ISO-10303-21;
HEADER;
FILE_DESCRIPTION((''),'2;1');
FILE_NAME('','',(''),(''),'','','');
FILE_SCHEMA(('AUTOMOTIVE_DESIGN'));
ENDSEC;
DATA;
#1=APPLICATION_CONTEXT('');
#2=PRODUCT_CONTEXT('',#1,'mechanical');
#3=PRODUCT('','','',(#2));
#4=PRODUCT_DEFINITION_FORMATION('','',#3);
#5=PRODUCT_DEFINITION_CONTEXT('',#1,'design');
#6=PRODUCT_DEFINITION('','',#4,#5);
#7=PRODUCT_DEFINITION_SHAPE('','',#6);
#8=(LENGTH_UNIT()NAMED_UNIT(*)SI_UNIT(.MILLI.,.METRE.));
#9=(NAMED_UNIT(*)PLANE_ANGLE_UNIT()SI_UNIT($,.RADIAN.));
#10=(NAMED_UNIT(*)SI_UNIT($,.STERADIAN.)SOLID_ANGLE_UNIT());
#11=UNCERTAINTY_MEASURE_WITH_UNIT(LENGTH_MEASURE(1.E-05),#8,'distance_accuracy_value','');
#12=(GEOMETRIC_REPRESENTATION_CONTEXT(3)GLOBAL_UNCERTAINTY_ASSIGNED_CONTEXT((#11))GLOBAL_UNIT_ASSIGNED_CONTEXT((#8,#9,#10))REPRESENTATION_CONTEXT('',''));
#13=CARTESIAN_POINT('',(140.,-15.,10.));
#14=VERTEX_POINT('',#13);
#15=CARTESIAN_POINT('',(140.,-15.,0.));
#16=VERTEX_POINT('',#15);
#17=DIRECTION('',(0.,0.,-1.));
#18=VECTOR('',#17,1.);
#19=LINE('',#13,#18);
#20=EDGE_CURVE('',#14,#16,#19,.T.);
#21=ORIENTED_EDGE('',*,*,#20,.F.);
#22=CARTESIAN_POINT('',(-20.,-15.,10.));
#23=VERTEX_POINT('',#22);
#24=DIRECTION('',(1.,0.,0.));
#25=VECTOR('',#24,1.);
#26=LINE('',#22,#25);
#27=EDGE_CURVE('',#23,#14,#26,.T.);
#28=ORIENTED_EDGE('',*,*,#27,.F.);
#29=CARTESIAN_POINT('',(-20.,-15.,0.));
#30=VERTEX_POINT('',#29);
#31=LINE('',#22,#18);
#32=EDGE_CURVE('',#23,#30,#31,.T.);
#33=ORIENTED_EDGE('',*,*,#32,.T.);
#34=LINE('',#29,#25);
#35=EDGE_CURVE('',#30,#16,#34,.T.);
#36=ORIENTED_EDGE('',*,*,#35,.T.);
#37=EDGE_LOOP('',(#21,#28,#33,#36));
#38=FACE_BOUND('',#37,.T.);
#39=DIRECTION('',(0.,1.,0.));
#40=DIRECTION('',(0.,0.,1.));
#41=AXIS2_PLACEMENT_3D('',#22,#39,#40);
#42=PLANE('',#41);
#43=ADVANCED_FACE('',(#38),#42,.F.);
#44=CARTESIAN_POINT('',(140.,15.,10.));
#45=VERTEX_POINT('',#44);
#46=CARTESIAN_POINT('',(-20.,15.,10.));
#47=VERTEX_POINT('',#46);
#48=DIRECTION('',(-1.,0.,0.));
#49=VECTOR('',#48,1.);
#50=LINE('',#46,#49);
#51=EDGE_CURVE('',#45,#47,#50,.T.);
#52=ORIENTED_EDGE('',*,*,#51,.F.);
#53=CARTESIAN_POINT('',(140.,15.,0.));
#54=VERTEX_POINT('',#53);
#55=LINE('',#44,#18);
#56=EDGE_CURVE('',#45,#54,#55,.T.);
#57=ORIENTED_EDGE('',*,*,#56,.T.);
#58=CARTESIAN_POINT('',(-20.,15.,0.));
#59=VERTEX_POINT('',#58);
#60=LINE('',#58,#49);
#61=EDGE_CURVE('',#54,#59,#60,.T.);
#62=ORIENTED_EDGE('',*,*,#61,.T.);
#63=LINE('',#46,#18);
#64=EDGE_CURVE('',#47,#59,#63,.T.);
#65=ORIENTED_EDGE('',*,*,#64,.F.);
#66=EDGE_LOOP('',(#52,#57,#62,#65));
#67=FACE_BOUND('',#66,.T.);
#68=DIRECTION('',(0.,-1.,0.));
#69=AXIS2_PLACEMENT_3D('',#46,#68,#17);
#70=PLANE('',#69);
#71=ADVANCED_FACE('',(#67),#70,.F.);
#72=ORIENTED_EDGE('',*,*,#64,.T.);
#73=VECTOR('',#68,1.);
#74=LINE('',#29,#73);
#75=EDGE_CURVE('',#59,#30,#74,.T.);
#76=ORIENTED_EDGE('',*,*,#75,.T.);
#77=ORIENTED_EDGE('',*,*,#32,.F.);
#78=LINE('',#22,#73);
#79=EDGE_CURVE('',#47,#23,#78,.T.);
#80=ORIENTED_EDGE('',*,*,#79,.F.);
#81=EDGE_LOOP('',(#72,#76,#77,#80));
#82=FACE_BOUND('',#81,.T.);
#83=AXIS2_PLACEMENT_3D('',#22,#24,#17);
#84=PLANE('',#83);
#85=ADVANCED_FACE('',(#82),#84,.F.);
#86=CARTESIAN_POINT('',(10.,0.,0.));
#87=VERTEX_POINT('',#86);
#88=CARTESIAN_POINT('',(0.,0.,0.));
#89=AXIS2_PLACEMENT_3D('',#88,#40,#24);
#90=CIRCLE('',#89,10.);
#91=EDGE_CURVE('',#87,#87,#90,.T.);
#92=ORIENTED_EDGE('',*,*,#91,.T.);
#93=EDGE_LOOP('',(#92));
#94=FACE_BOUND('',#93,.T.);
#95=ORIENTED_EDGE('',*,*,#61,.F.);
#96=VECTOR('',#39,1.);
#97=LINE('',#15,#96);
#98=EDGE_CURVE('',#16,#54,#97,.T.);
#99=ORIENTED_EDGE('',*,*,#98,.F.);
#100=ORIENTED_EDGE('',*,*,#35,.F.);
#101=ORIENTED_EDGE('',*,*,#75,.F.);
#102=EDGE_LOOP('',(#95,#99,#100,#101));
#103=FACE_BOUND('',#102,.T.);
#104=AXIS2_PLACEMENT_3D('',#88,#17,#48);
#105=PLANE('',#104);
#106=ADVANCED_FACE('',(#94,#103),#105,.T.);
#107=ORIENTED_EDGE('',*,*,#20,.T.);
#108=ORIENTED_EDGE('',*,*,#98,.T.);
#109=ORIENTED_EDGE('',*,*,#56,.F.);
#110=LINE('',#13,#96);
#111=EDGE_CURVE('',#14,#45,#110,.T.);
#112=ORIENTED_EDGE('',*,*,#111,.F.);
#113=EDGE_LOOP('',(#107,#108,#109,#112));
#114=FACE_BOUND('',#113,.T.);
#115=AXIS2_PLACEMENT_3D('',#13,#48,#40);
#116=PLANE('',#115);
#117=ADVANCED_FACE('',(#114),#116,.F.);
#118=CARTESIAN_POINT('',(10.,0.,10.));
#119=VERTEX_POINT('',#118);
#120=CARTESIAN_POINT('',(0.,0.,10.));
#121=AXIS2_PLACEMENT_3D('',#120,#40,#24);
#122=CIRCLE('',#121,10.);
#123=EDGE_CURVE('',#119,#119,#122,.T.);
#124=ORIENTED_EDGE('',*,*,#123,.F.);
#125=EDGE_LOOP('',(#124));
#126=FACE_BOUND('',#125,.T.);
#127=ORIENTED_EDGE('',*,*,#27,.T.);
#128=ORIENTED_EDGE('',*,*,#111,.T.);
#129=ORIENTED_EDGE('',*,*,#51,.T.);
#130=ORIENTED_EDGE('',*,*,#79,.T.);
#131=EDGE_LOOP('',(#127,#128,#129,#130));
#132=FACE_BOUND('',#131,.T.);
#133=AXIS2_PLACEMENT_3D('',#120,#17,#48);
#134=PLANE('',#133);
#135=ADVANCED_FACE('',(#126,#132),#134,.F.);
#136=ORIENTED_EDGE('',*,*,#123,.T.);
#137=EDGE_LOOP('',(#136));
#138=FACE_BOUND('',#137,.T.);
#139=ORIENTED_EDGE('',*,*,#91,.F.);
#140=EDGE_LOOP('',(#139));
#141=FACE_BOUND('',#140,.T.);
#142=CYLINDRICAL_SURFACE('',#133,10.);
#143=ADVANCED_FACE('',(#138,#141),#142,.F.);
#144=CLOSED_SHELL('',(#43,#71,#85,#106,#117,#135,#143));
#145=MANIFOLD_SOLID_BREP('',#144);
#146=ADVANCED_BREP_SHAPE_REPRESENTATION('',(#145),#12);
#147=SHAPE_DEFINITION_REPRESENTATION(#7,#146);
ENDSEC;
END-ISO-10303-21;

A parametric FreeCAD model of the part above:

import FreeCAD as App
import Part
import Sketcher

V = App.Vector

doc = App.newDocument("Part")
body = doc.addObject("PartDesign::Body", "Body")

sketch1 = doc.addObject("Sketcher::SketchObject", "Sketch")
body.addObject(sketch1)
sketch1.AttachmentSupport = (doc.XY_Plane, [""])
sketch1.MapMode = "FlatFace"
sketch1.addGeometry([
    Part.LineSegment(V(-20, 15, 0), V(-20, -15, 0)),
    Part.LineSegment(V(-20, -15, 0), V(140, -15, 0)),
    Part.LineSegment(V(140, -15, 0), V(140, 15, 0)),
    Part.LineSegment(V(140, 15, 0), V(-20, 15, 0)),
    Part.Circle(V(0, 0, 0), V(0, 0, 1), 10),
], False)
sketch1.addConstraint([
    Sketcher.Constraint("Coincident", 0, 2, 1, 1),
    Sketcher.Constraint("Coincident", 1, 2, 2, 1),
    Sketcher.Constraint("Coincident", 2, 2, 3, 1),
    Sketcher.Constraint("Coincident", 3, 2, 0, 1),
    Sketcher.Constraint("Vertical", 0),
    Sketcher.Constraint("Horizontal", 1),
    Sketcher.Constraint("Vertical", 2),
    Sketcher.Constraint("Horizontal", 3),
    Sketcher.Constraint("Coincident", 4, 3, -1, 1),
    Sketcher.Constraint("Diameter", 4, 20.0),
    Sketcher.Constraint("DistanceX", 1, 1, 1, 2, 160.0),
    Sketcher.Constraint("DistanceY", 0, 2, 0, 1, 30.0),
    Sketcher.Constraint("DistanceX", 0, 2, -1, 1, 20.0),
    Sketcher.Constraint("DistanceY", 0, 2, -1, 1, 15.0),
])
pad1 = doc.addObject("PartDesign::Pad", "Pad")
body.addObject(pad1)
pad1.Profile = sketch1
pad1.Length = 10

doc.recompute()
